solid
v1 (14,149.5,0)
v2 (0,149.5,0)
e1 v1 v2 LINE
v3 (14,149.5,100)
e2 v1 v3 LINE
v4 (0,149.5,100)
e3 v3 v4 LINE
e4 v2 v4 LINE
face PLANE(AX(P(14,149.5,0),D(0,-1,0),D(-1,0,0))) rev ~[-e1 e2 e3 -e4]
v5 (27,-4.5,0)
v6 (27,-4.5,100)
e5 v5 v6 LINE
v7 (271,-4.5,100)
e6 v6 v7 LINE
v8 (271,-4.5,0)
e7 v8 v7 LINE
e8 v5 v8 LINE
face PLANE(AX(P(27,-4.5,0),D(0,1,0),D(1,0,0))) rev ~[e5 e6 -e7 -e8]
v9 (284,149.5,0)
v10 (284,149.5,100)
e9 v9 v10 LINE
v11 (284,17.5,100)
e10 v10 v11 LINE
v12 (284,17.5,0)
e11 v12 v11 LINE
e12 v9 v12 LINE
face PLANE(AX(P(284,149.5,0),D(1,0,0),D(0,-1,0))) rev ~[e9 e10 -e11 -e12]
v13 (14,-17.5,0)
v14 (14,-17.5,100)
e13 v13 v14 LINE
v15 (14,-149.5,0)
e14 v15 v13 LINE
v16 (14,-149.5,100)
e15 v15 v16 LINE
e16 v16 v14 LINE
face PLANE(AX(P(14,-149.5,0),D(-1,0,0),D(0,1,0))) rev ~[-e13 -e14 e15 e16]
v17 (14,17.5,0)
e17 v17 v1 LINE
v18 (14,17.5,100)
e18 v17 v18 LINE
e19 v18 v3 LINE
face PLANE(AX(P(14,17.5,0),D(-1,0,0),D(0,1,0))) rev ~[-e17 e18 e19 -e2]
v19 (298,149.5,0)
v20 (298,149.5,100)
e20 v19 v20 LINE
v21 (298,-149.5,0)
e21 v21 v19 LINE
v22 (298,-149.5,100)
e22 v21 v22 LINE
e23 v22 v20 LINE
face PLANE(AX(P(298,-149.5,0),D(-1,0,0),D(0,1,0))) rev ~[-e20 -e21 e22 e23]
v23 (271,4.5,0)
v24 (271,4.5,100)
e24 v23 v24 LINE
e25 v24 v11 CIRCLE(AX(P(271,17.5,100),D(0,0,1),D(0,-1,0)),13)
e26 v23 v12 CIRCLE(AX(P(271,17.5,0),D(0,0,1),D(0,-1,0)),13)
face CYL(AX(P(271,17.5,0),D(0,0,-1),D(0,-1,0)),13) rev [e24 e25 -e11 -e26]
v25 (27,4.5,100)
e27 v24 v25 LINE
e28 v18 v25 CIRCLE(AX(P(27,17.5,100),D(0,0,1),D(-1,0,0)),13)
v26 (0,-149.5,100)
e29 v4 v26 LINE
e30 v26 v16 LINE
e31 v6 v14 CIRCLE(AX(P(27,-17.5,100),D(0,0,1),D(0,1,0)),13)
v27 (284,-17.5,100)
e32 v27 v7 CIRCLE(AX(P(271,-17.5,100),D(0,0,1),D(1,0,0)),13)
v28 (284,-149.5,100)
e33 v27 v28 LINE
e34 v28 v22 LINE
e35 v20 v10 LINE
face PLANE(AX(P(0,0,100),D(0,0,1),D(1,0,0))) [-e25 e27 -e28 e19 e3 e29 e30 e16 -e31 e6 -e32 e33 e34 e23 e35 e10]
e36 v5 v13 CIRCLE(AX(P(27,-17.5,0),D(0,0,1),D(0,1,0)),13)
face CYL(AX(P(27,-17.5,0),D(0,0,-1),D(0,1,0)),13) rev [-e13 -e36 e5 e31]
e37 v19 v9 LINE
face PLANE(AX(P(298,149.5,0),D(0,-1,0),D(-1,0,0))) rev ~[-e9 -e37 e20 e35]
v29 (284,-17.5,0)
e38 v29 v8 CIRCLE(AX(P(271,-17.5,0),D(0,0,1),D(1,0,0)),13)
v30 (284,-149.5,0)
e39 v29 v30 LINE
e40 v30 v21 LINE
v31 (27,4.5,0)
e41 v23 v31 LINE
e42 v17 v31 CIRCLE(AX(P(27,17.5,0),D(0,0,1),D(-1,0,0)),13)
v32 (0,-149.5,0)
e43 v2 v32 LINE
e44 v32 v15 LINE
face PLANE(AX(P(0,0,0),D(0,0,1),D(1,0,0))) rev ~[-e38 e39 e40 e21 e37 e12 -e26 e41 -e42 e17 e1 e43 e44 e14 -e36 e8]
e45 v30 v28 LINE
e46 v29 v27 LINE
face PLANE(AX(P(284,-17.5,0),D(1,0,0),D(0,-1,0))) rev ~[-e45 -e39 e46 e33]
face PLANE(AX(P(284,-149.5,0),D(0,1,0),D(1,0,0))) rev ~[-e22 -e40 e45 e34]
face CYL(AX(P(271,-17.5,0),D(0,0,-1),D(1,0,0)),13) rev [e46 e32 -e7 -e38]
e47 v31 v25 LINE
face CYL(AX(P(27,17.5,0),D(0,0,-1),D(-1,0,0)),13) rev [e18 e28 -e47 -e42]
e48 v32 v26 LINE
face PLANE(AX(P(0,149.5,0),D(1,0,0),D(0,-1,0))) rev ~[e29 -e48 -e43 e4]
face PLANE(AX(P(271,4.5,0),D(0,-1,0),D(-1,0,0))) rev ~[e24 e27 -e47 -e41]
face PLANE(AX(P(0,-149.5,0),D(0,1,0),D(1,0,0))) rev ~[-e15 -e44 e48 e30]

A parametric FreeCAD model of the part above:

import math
import FreeCAD as App
import Part
import Sketcher

V = App.Vector

doc = App.newDocument("Part")
params = doc.addObject("Spreadsheet::Sheet", "Params")
for row, (alias, value) in enumerate([
    ("sketch1_radius", "13 mm"),
    ("sketch1_width", "14 mm"),
    ("sketch1_width2", "244 mm"),
    ("sketch1_height", "299 mm"),
    ("sketch1_height2", "132 mm"),
    ("pad1_length", "100 mm"),
], start=1):
    params.set(f"A{row}", alias)
    params.set(f"B{row}", "=" + value)
    params.setAlias(f"B{row}", alias)

body = doc.addObject("PartDesign::Body", "Body")

sketch1 = body.newObject("Sketcher::SketchObject", "Sketch")
sketch1.AttachmentSupport = (doc.getObject("XY_Plane"), [""])
sketch1.MapMode = "FlatFace"
sketch1.addGeometry(Part.LineSegment(V(298, -149.5, 0), V(298, 149.5, 0)), False)
sketch1.addGeometry(Part.LineSegment(V(298, 149.5, 0), V(284, 149.5, 0)), False)
sketch1.addGeometry(Part.LineSegment(V(284, 149.5, 0), V(284, 17.5, 0)), False)
sketch1.addGeometry(Part.ArcOfCircle(Part.Circle(V(271, 17.5, 0), V(0, 0, 1), 13), math.radians(-90), math.radians(0)), False)
sketch1.addGeometry(Part.LineSegment(V(271, 4.5, 0), V(27, 4.5, 0)), False)
sketch1.addGeometry(Part.ArcOfCircle(Part.Circle(V(27, 17.5, 0), V(0, 0, 1), 13), math.radians(180), math.radians(270)), False)
sketch1.addGeometry(Part.LineSegment(V(14, 17.5, 0), V(14, 149.5, 0)), False)
sketch1.addGeometry(Part.LineSegment(V(14, 149.5, 0), V(0, 149.5, 0)), False)
sketch1.addGeometry(Part.LineSegment(V(0, 149.5, 0), V(0, -149.5, 0)), False)
sketch1.addGeometry(Part.LineSegment(V(0, -149.5, 0), V(14, -149.5, 0)), False)
sketch1.addGeometry(Part.LineSegment(V(14, -149.5, 0), V(14, -17.5, 0)), False)
sketch1.addGeometry(Part.ArcOfCircle(Part.Circle(V(27, -17.5, 0), V(0, 0, 1), 13), math.radians(90), math.radians(180)), False)
sketch1.addGeometry(Part.LineSegment(V(27, -4.5, 0), V(271, -4.5, 0)), False)
sketch1.addGeometry(Part.ArcOfCircle(Part.Circle(V(271, -17.5, 0), V(0, 0, 1), 13), math.radians(0), math.radians(90)), False)
sketch1.addGeometry(Part.LineSegment(V(284, -17.5, 0), V(284, -149.5, 0)), False)
sketch1.addGeometry(Part.LineSegment(V(284, -149.5, 0), V(298, -149.5, 0)), False)
sketch1.addConstraint(Sketcher.Constraint("Coincident", 0, 2, 1, 1))
sketch1.addConstraint(Sketcher.Constraint("Coincident", 1, 2, 2, 1))
sketch1.addConstraint(Sketcher.Constraint("Tangent", 2, 2, 3, 2))
sketch1.addConstraint(Sketcher.Constraint("Tangent", 3, 1, 4, 1))
sketch1.addConstraint(Sketcher.Constraint("Tangent", 4, 2, 5, 2))
sketch1.addConstraint(Sketcher.Constraint("Tangent", 5, 1, 6, 1))
sketch1.addConstraint(Sketcher.Constraint("Coincident", 6, 2, 7, 1))
sketch1.addConstraint(Sketcher.Constraint("Coincident", 7, 2, 8, 1))
sketch1.addConstraint(Sketcher.Constraint("Coincident", 8, 2, 9, 1))
sketch1.addConstraint(Sketcher.Constraint("Coincident", 9, 2, 10, 1))
sketch1.addConstraint(Sketcher.Constraint("Tangent", 10, 2, 11, 2))
sketch1.addConstraint(Sketcher.Constraint("Tangent", 11, 1, 12, 1))
sketch1.addConstraint(Sketcher.Constraint("Tangent", 12, 2, 13, 2))
sketch1.addConstraint(Sketcher.Constraint("Tangent", 13, 1, 14, 1))
sketch1.addConstraint(Sketcher.Constraint("Coincident", 14, 2, 15, 1))
sketch1.addConstraint(Sketcher.Constraint("Coincident", 15, 2, 0, 1))
sketch1.addConstraint(Sketcher.Constraint("Vertical", 0))
sketch1.addConstraint(Sketcher.Constraint("Horizontal", 1))
sketch1.addConstraint(Sketcher.Constraint("Vertical", 2))
sketch1.addConstraint(Sketcher.Constraint("Horizontal", 4))
sketch1.addConstraint(Sketcher.Constraint("Vertical", 6))
sketch1.addConstraint(Sketcher.Constraint("Horizontal", 7))
sketch1.addConstraint(Sketcher.Constraint("Vertical", 8))
sketch1.addConstraint(Sketcher.Constraint("Horizontal", 9))
sketch1.addConstraint(Sketcher.Constraint("Vertical", 10))
sketch1.addConstraint(Sketcher.Constraint("Horizontal", 12))
sketch1.addConstraint(Sketcher.Constraint("Vertical", 14))
sketch1.addConstraint(Sketcher.Constraint("Horizontal", 15))
sketch1.addConstraint(Sketcher.Constraint("Equal", 3, 5))
sketch1.addConstraint(Sketcher.Constraint("Equal", 5, 11))
sketch1.addConstraint(Sketcher.Constraint("Equal", 11, 13))
sketch1.addConstraint(Sketcher.Constraint("Symmetric", 7, 2, 8, 2, -1, 1))
sketch1.addConstraint(Sketcher.Constraint("Symmetric", 5, 3, 11, 3, -1))
sketch1.addConstraint(Sketcher.Constraint("Symmetric", 1, 2, 14, 2, -1))
sketch1.addConstraint(Sketcher.Constraint("Horizontal", 1, 2, 6, 2))
sketch1.addConstraint(Sketcher.Constraint("Equal", 1, 7))
sketch1.addConstraint(Sketcher.Constraint("Radius", 3, 13.0))
sketch1.addConstraint(Sketcher.Constraint("DistanceX", 1, 2, 1, 1, 14.0))
sketch1.addConstraint(Sketcher.Constraint("DistanceX", 4, 2, 4, 1, 244.0))
sketch1.addConstraint(Sketcher.Constraint("DistanceY", 0, 1, 0, 2, 299.0))
sketch1.addConstraint(Sketcher.Constraint("DistanceY", 2, 2, 2, 1, 132.0))
sketch1.setExpression("Constraints[36]", "Params.sketch1_radius")
sketch1.setExpression("Constraints[37]", "Params.sketch1_width")
sketch1.setExpression("Constraints[38]", "Params.sketch1_width2")
sketch1.setExpression("Constraints[39]", "Params.sketch1_height")
sketch1.setExpression("Constraints[40]", "Params.sketch1_height2")
pad1 = body.newObject("PartDesign::Pad", "Pad")
pad1.Profile = sketch1
pad1.setExpression("Length", "Params.pad1_length")

doc.recompute()
